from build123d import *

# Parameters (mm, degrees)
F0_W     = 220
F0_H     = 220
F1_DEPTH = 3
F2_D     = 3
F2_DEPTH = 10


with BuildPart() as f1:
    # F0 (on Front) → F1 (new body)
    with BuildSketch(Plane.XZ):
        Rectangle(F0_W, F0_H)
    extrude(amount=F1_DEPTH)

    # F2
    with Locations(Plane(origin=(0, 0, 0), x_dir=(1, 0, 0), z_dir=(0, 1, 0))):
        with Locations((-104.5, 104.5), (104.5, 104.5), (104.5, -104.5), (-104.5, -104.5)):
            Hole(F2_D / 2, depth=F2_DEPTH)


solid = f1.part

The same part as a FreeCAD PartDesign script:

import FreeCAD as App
import Part
import Sketcher

V = App.Vector

doc = App.newDocument("Part")
body = doc.addObject("PartDesign::Body", "Body")

# Sketch on XZ plane
sketch1 = body.newObject("Sketcher::SketchObject", "Sketch")
sketch1.AttachmentSupport = (doc.getObject("XZ_Plane"), [""])
sketch1.MapMode = "FlatFace"
sketch1.addGeometry([
    Part.LineSegment(V(-110, 110, 0), V(-110, -110, 0)),
    Part.LineSegment(V(-110, -110, 0), V(110, -110, 0)),
    Part.LineSegment(V(110, -110, 0), V(110, 110, 0)),
    Part.LineSegment(V(110, 110, 0), V(-110, 110, 0)),
], False)
sketch1.addConstraint([
    Sketcher.Constraint("Coincident", 0, 2, 1, 1),
    Sketcher.Constraint("Coincident", 1, 2, 2, 1),
    Sketcher.Constraint("Coincident", 2, 2, 3, 1),
    Sketcher.Constraint("Coincident", 3, 2, 0, 1),
    Sketcher.Constraint("Vertical", 0),
    Sketcher.Constraint("Horizontal", 1),
    Sketcher.Constraint("Vertical", 2),
    Sketcher.Constraint("Horizontal", 3),
    Sketcher.Constraint("Symmetric", 0, 2, 2, 2, -1, 1),
    Sketcher.Constraint("Equal", 3, 0),
    Sketcher.Constraint("DistanceX", 1, 1, 1, 2, 220.0),
])
pad1 = body.newObject("PartDesign::Pad", "Pad")
pad1.Profile = sketch1
pad1.Length = 3

# Sketch on XZ plane
sketch2 = body.newObject("Sketcher::SketchObject", "Sketch001")
sketch2.AttachmentSupport = (doc.getObject("XZ_Plane"), [""])
sketch2.MapMode = "FlatFace"
sketch2.addGeometry([
    Part.Circle(V(-104.5, -104.5, 0), V(0, 0, 1), 1.5),
    Part.Circle(V(104.5, -104.5, 0), V(0, 0, 1), 1.5),
    Part.Circle(V(104.5, 104.5, 0), V(0, 0, 1), 1.5),
    Part.Circle(V(-104.5, 104.5, 0), V(0, 0, 1), 1.5),
], False)
sketch2.addConstraint([
    Sketcher.Constraint("Equal", 0, 1),
    Sketcher.Constraint("Equal", 1, 2),
    Sketcher.Constraint("Equal", 2, 3),
    Sketcher.Constraint("Symmetric", 0, 3, 2, 3, -1, 1),
    Sketcher.Constraint("Symmetric", 1, 3, 3, 3, -1, 1),
    Sketcher.Constraint("Symmetric", 0, 3, 1, 3, -2),
    Sketcher.Constraint("Diameter", 0, 3.0),
    Sketcher.Constraint("DistanceX", 0, 3, 1, 3, 209.0),
    Sketcher.Constraint("DistanceY", 1, 3, 2, 3, 209.0),
])
doc.recompute()
hole = body.newObject("PartDesign::Hole", "Hole")
hole.Profile = sketch2
hole.ThreadType = "None"
hole.Diameter = 3
hole.DepthType = "Dimension"
hole.Depth = 10
hole.DrillPoint = "Flat"
hole.Reversed = True

doc.recompute()
